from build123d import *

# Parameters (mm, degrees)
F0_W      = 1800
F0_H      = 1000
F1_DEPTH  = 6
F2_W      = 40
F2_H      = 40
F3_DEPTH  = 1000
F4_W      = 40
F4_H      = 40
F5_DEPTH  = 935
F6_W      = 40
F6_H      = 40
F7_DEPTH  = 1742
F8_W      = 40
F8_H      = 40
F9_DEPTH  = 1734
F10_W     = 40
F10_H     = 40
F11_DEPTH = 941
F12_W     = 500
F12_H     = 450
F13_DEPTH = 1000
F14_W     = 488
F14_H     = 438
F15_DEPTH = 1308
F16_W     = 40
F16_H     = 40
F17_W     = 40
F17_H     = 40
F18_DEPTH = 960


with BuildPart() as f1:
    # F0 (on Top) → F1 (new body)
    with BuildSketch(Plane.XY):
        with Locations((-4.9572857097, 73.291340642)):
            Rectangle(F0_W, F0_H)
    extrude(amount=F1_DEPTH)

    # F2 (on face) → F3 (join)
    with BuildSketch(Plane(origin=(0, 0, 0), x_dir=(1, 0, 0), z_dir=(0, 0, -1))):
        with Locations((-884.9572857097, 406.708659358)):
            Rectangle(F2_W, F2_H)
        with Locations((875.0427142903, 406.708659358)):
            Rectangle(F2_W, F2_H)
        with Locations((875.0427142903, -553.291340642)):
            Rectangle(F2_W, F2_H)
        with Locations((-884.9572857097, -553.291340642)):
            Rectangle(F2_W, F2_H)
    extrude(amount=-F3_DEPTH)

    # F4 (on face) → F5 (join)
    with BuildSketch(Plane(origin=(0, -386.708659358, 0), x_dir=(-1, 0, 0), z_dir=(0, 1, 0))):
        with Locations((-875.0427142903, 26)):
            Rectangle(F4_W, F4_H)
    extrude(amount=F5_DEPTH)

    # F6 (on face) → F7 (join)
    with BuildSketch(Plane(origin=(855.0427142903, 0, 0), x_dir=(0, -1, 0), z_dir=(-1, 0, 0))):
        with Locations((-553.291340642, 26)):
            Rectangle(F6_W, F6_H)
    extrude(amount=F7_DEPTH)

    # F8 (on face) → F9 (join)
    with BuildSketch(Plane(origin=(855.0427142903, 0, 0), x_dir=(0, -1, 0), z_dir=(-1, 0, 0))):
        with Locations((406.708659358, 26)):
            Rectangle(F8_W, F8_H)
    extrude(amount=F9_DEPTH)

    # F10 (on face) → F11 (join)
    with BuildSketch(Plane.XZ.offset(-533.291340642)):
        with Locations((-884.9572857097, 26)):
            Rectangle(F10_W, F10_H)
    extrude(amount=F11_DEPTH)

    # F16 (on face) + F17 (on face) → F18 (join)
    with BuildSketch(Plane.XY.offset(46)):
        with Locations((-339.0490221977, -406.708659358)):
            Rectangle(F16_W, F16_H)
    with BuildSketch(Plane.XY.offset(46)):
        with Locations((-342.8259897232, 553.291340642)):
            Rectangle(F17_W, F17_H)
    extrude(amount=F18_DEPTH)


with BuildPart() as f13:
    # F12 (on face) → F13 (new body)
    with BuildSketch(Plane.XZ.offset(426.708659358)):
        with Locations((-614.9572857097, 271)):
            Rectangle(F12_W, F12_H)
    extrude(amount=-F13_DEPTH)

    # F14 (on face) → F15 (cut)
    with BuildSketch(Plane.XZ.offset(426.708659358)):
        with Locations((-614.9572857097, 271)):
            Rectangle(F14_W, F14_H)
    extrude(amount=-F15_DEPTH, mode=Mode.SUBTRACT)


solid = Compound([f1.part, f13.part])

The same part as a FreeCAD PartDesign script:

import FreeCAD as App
import Part
import Sketcher

V = App.Vector
Q = App.Units.Quantity


def add_polygon(sketch, points):
    """Adds a closed chain of lines whose ends are joined by coincident constraints."""
    first, n = sketch.GeometryCount, len(points)
    for a, b in zip(points, points[1:] + points[:1]):
        sketch.addGeometry(Part.LineSegment(App.Vector(*a, 0), App.Vector(*b, 0)), False)
    for i in range(n):
        sketch.addConstraint(Sketcher.Constraint("Coincident", first + i, 2, first + (i + 1) % n, 1))

doc = App.newDocument("Part")
body = doc.addObject("PartDesign::Body", "Body")

# Sketch on XY plane
sketch1 = body.newObject("Sketcher::SketchObject", "Sketch")
sketch1.AttachmentSupport = (doc.getObject("XY_Plane"), [""])
sketch1.MapMode = "FlatFace"
add_polygon(sketch1, [(-905, 573), (-905, -427), (895, -427), (895, 573)])  # lines 0-3
sketch1.addConstraint([
    Sketcher.Constraint("Vertical", 0),
    Sketcher.Constraint("Horizontal", 1),
    Sketcher.Constraint("Vertical", 2),
    Sketcher.Constraint("Horizontal", 3),
    Sketcher.Constraint("DistanceX", 1, 1, 1, 2, Q("1800 mm")),
    Sketcher.Constraint("DistanceY", 0, 2, 0, 1, Q("1000 mm")),
    Sketcher.Constraint("DistanceY", 0, 2, -1, 1, Q("426.708659 mm")),
    Sketcher.Constraint("DistanceX", 0, 2, -1, 1, Q("904.957286 mm")),
])
pad1 = body.newObject("PartDesign::Pad", "Pad")
pad1.Profile = sketch1
pad1.Length = 6

# Sketch on XY plane
sketch2 = body.newObject("Sketcher::SketchObject", "Sketch001")
sketch2.AttachmentSupport = (doc.getObject("XY_Plane"), [""])
sketch2.MapMode = "FlatFace"
add_polygon(sketch2, [(-905, -427), (-905, -387), (-865, -387), (-865, -427)])  # lines 0-3
add_polygon(sketch2, [(855, -427), (855, -387), (895, -387), (895, -427)])  # lines 4-7
add_polygon(sketch2, [(855, 533), (855, 573), (895, 573), (895, 533)])  # lines 8-11
add_polygon(sketch2, [(-905, 533), (-905, 573), (-865, 573), (-865, 533)])  # lines 12-15
sketch2.addConstraint([
    Sketcher.Constraint("Vertical", 0),
    Sketcher.Constraint("Horizontal", 1),
    Sketcher.Constraint("Vertical", 2),
    Sketcher.Constraint("Horizontal", 3),
    Sketcher.Constraint("Vertical", 4),
    Sketcher.Constraint("Horizontal", 5),
    Sketcher.Constraint("Vertical", 6),
    Sketcher.Constraint("Horizontal", 7),
    Sketcher.Constraint("Vertical", 8),
    Sketcher.Constraint("Horizontal", 9),
    Sketcher.Constraint("Vertical", 10),
    Sketcher.Constraint("Horizontal", 11),
    Sketcher.Constraint("Vertical", 12),
    Sketcher.Constraint("Horizontal", 13),
    Sketcher.Constraint("Vertical", 14),
    Sketcher.Constraint("Horizontal", 15),
    Sketcher.Constraint("Horizontal", 1, 2, 4, 2),
    Sketcher.Constraint("Horizontal", 3, 2, 6, 2),
    Sketcher.Constraint("Horizontal", 9, 2, 12, 2),
    Sketcher.Constraint("Horizontal", 11, 2, 14, 2),
    Sketcher.Constraint("Vertical", 7, 2, 8, 2),
    Sketcher.Constraint("Vertical", 6, 2, 9, 2),
    Sketcher.Constraint("Vertical", 3, 2, 12, 2),
    Sketcher.Constraint("Vertical", 2, 2, 13, 2),
    Sketcher.Constraint("Equal", 3, 5),
    Sketcher.Constraint("Equal", 15, 0),
    Sketcher.Constraint("Equal", 6, 8),
    Sketcher.Constraint("DistanceX", 1, 1, 1, 2, Q("40 mm")),
    Sketcher.Constraint("DistanceX", 1, 2, 4, 2, Q("1720 mm")),
    Sketcher.Constraint("DistanceY", 4, 2, 8, 2, Q("960 mm")),
    Sketcher.Constraint("DistanceY", 0, 2, -1, 1, Q("386.708659 mm")),
    Sketcher.Constraint("DistanceX", 0, 2, -1, 1, Q("904.957286 mm")),
])
pad2 = body.newObject("PartDesign::Pad", "Pad001")
pad2.Profile = sketch2
pad2.Length = 1000

# Sketch on XZ plane
sketch3 = body.newObject("Sketcher::SketchObject", "Sketch002")
sketch3.AttachmentSupport = (doc.getObject("XZ_Plane"), [""])
sketch3.MapMode = "FlatFace"
sketch3.AttachmentOffset = App.Placement(V(0, 0, 386.708659), App.Rotation())
add_polygon(sketch3, [(895, 46), (895, 6), (855, 6), (855, 46)])  # lines 0-3
sketch3.addConstraint([
    Sketcher.Constraint("Vertical", 0),
    Sketcher.Constraint("Horizontal", 1),
    Sketcher.Constraint("Vertical", 2),
    Sketcher.Constraint("Horizontal", 3),
    Sketcher.Constraint("Equal", 3, 0),
    Sketcher.Constraint("DistanceX", 1, 2, 1, 1, Q("40 mm")),
    Sketcher.Constraint("DistanceY", -1, 1, 0, 2, Q("6 mm")),
    Sketcher.Constraint("DistanceX", -1, 1, 0, 2, Q("895.042714 mm")),
])
pad3 = body.newObject("PartDesign::Pad", "Pad002")
pad3.Profile = sketch3
pad3.Length = 935
pad3.Reversed = True

# Sketch on YZ plane
sketch4 = body.newObject("Sketcher::SketchObject", "Sketch003")
sketch4.AttachmentSupport = (doc.getObject("YZ_Plane"), [""])
sketch4.MapMode = "FlatFace"
sketch4.AttachmentOffset = App.Placement(V(0, 0, 855.042714), App.Rotation())
add_polygon(sketch4, [(573, 46), (573, 6), (533, 6), (533, 46)])  # lines 0-3
sketch4.addConstraint([
    Sketcher.Constraint("Vertical", 0),
    Sketcher.Constraint("Horizontal", 1),
    Sketcher.Constraint("Vertical", 2),
    Sketcher.Constraint("Horizontal", 3),
    Sketcher.Constraint("Equal", 3, 0),
    Sketcher.Constraint("DistanceX", 1, 2, 1, 1, Q("40 mm")),
    Sketcher.Constraint("DistanceY", -1, 1, 0, 2, Q("6 mm")),
    Sketcher.Constraint("DistanceX", -1, 1, 0, 2, Q("573.291341 mm")),
])
pad4 = body.newObject("PartDesign::Pad", "Pad003")
pad4.Profile = sketch4
pad4.Length = 1742
pad4.Reversed = True

# Sketch on YZ plane
sketch5 = body.newObject("Sketcher::SketchObject", "Sketch004")
sketch5.AttachmentSupport = (doc.getObject("YZ_Plane"), [""])
sketch5.MapMode = "FlatFace"
sketch5.AttachmentOffset = App.Placement(V(0, 0, 855.042714), App.Rotation())
add_polygon(sketch5, [(-387, 46), (-387, 6), (-427, 6), (-427, 46)])  # lines 0-3
sketch5.addConstraint([
    Sketcher.Constraint("Vertical", 0),
    Sketcher.Constraint("Horizontal", 1),
    Sketcher.Constraint("Vertical", 2),
    Sketcher.Constraint("Horizontal", 3),
    Sketcher.Constraint("Equal", 3, 0),
    Sketcher.Constraint("DistanceX", 1, 2, 1, 1, Q("40 mm")),
    Sketcher.Constraint("DistanceY", -1, 1, 0, 2, Q("6 mm")),
    Sketcher.Constraint("DistanceX", 0, 2, -1, 1, Q("386.708659 mm")),
])
pad5 = body.newObject("PartDesign::Pad", "Pad004")
pad5.Profile = sketch5
pad5.Length = 1734
pad5.Reversed = True

# Sketch on XZ plane
sketch6 = body.newObject("Sketcher::SketchObject", "Sketch005")
sketch6.AttachmentSupport = (doc.getObject("XZ_Plane"), [""])
sketch6.MapMode = "FlatFace"
sketch6.AttachmentOffset = App.Placement(V(0, 0, -533.291341), App.Rotation())
add_polygon(sketch6, [(-905, 46), (-905, 6), (-865, 6), (-865, 46)])  # lines 0-3
sketch6.addConstraint([
    Sketcher.Constraint("Vertical", 0),
    Sketcher.Constraint("Horizontal", 1),
    Sketcher.Constraint("Vertical", 2),
    Sketcher.Constraint("Horizontal", 3),
    Sketcher.Constraint("Equal", 3, 0),
    Sketcher.Constraint("DistanceX", 1, 1, 1, 2, Q("40 mm")),
    Sketcher.Constraint("DistanceY", -1, 1, 0, 2, Q("6 mm")),
    Sketcher.Constraint("DistanceX", 0, 2, -1, 1, Q("904.957286 mm")),
])
pad6 = body.newObject("PartDesign::Pad", "Pad005")
pad6.Profile = sketch6
pad6.Length = 941

# Sketch on XY plane
sketch7 = body.newObject("Sketcher::SketchObject", "Sketch006")
sketch7.AttachmentSupport = (doc.getObject("XY_Plane"), [""])
sketch7.MapMode = "FlatFace"
sketch7.AttachmentOffset = App.Placement(V(0, 0, 46), App.Rotation())
add_polygon(sketch7, [(-359, -387), (-359, -427), (-319, -427), (-319, -387)])  # lines 0-3
add_polygon(sketch7, [(-363, 573), (-363, 533), (-323, 533), (-323, 573)])  # lines 4-7
sketch7.addConstraint([
    Sketcher.Constraint("Vertical", 0),
    Sketcher.Constraint("Horizontal", 1),
    Sketcher.Constraint("Vertical", 2),
    Sketcher.Constraint("Horizontal", 3),
    Sketcher.Constraint("Vertical", 4),
    Sketcher.Constraint("Horizontal", 5),
    Sketcher.Constraint("Vertical", 6),
    Sketcher.Constraint("Horizontal", 7),
    Sketcher.Constraint("Equal", 3, 5),
    Sketcher.Constraint("Equal", 7, 0),
    Sketcher.Constraint("Equal", 2, 4),
    Sketcher.Constraint("DistanceX", 1, 1, 1, 2, Q("40 mm")),
    Sketcher.Constraint("DistanceY", 3, 2, 4, 2, Q("920 mm")),
    Sketcher.Constraint("DistanceY", 0, 2, -1, 1, Q("426.708659 mm")),
    Sketcher.Constraint("DistanceX", 4, 2, -1, 1, Q("362.82599 mm")),
    Sketcher.Constraint("DistanceX", 0, 2, -1, 1, Q("359.049022 mm")),
])
pad7 = body.newObject("PartDesign::Pad", "Pad006")
pad7.Profile = sketch7
pad7.Length = 960
body2 = doc.addObject("PartDesign::Body", "Body001")

# Sketch on XZ plane
sketch8 = body2.newObject("Sketcher::SketchObject", "Sketch007")
sketch8.AttachmentSupport = (doc.getObject("XZ_Plane001"), [""])
sketch8.MapMode = "FlatFace"
sketch8.AttachmentOffset = App.Placement(V(0, 0, 426.708659), App.Rotation())
add_polygon(sketch8, [(-865, 496), (-865, 46), (-365, 46), (-365, 496)])  # lines 0-3
sketch8.addConstraint([
    Sketcher.Constraint("Vertical", 0),
    Sketcher.Constraint("Horizontal", 1),
    Sketcher.Constraint("Vertical", 2),
    Sketcher.Constraint("Horizontal", 3),
    Sketcher.Constraint("DistanceX", 1, 1, 1, 2, Q("500 mm")),
    Sketcher.Constraint("DistanceY", 0, 2, 0, 1, Q("450 mm")),
    Sketcher.Constraint("DistanceY", -1, 1, 0, 2, Q("46 mm")),
    Sketcher.Constraint("DistanceX", 0, 2, -1, 1, Q("864.957286 mm")),
])
pad8 = body2.newObject("PartDesign::Pad", "Pad007")
pad8.Profile = sketch8
pad8.Length = 1000
pad8.Reversed = True

# Sketch on XZ plane
sketch9 = body2.newObject("Sketcher::SketchObject", "Sketch008")
sketch9.AttachmentSupport = (doc.getObject("XZ_Plane001"), [""])
sketch9.MapMode = "FlatFace"
sketch9.AttachmentOffset = App.Placement(V(0, 0, 426.708659), App.Rotation())
add_polygon(sketch9, [(-859, 490), (-859, 52), (-371, 52), (-371, 490)])  # lines 0-3
sketch9.addConstraint([
    Sketcher.Constraint("Vertical", 0),
    Sketcher.Constraint("Horizontal", 1),
    Sketcher.Constraint("Vertical", 2),
    Sketcher.Constraint("Horizontal", 3),
    Sketcher.Constraint("DistanceX", 1, 1, 1, 2, Q("488 mm")),
    Sketcher.Constraint("DistanceY", 0, 2, 0, 1, Q("438 mm")),
    Sketcher.Constraint("DistanceY", -1, 1, 0, 2, Q("52 mm")),
    Sketcher.Constraint("DistanceX", 0, 2, -1, 1, Q("858.957286 mm")),
])
pocket1 = body2.newObject("PartDesign::Pocket", "Pocket")
pocket1.Profile = sketch9
pocket1.Length = 1308

doc.recompute()
